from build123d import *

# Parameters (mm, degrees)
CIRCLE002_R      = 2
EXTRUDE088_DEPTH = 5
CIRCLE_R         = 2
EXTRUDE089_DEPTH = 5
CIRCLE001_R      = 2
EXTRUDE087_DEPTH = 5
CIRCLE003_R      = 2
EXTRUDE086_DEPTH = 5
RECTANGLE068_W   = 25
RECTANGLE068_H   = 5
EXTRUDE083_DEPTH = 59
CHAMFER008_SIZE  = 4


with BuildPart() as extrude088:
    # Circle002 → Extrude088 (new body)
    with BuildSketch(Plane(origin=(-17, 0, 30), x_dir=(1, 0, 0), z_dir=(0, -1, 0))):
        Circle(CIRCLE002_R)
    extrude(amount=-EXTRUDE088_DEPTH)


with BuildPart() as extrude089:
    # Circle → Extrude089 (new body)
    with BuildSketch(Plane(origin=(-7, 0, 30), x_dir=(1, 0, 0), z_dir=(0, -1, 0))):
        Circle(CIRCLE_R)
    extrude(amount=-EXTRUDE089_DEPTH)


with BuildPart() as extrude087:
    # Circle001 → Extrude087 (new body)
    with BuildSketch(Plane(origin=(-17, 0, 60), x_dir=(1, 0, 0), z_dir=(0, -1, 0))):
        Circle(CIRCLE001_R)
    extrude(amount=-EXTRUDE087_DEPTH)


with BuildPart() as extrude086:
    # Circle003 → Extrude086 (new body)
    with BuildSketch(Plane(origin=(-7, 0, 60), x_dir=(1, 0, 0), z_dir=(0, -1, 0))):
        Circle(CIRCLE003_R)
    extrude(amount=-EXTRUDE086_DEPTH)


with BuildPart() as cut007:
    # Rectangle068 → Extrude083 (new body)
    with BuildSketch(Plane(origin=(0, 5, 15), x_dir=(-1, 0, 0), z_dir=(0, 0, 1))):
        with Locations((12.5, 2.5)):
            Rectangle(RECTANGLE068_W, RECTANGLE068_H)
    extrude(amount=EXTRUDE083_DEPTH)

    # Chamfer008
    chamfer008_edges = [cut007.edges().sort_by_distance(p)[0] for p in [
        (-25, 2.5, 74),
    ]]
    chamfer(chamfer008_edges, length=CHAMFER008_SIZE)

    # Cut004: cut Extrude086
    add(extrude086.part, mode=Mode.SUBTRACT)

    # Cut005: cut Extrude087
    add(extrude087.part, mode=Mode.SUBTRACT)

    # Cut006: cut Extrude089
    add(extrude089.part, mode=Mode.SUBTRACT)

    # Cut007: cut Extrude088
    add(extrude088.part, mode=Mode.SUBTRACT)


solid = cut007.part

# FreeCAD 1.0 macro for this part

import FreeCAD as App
import Part
import Sketcher

V = App.Vector
Q = App.Units.Quantity


def edges_at(feature, points):
    """Names of the edges that pass closest to the given points."""
    edges = feature.Shape.Edges
    near = lambda p: min(range(len(edges)), key=lambda i: edges[i].distToShape(Part.Vertex(*p))[0])
    return sorted({f"Edge{near(p) + 1}" for p in points})


def add_polygon(sketch, points):
    """Adds a closed chain of lines whose ends are joined by coincident constraints."""
    first, n = sketch.GeometryCount, len(points)
    for a, b in zip(points, points[1:] + points[:1]):
        sketch.addGeometry(Part.LineSegment(App.Vector(*a, 0), App.Vector(*b, 0)), False)
    for i in range(n):
        sketch.addConstraint(Sketcher.Constraint("Coincident", first + i, 2, first + (i + 1) % n, 1))

doc = App.newDocument("Part")
body = doc.addObject("PartDesign::Body", "Body")

sketch1 = doc.addObject("Sketcher::SketchObject", "Sketch")
body.addObject(sketch1)
sketch1.AttachmentSupport = (doc.XZ_Plane, [""])
sketch1.MapMode = "FlatFace"
sketch1.addGeometry(Part.Circle(V(-17, 30, 0), V(0, 0, 1), 2), False)
sketch1.addConstraint(Sketcher.Constraint("Diameter", 0, Q("4 mm")))
sketch1.addConstraint(Sketcher.Constraint("DistanceX", 0, 3, -1, 1, Q("17 mm")))
sketch1.addConstraint(Sketcher.Constraint("DistanceY", -1, 1, 0, 3, Q("30 mm")))
pad1 = doc.addObject("PartDesign::Pad", "Pad")
body.addObject(pad1)
pad1.Profile = sketch1
pad1.Length = 5
pad1.Reversed = True
body2 = doc.addObject("PartDesign::Body", "Body001")

sketch2 = doc.addObject("Sketcher::SketchObject", "Sketch001")
body2.addObject(sketch2)
sketch2.AttachmentSupport = (doc.getObject("XZ_Plane001"), [""])
sketch2.MapMode = "FlatFace"
sketch2.addGeometry(Part.Circle(V(-7, 30, 0), V(0, 0, 1), 2), False)
sketch2.addConstraint(Sketcher.Constraint("Diameter", 0, Q("4 mm")))
sketch2.addConstraint(Sketcher.Constraint("DistanceX", 0, 3, -1, 1, Q("7 mm")))
sketch2.addConstraint(Sketcher.Constraint("DistanceY", -1, 1, 0, 3, Q("30 mm")))
pad2 = doc.addObject("PartDesign::Pad", "Pad001")
body2.addObject(pad2)
pad2.Profile = sketch2
pad2.Length = 5
pad2.Reversed = True
body3 = doc.addObject("PartDesign::Body", "Body002")

sketch3 = doc.addObject("Sketcher::SketchObject", "Sketch002")
body3.addObject(sketch3)
sketch3.AttachmentSupport = (doc.getObject("XZ_Plane002"), [""])
sketch3.MapMode = "FlatFace"
sketch3.addGeometry(Part.Circle(V(-17, 60, 0), V(0, 0, 1), 2), False)
sketch3.addConstraint(Sketcher.Constraint("Diameter", 0, Q("4 mm")))
sketch3.addConstraint(Sketcher.Constraint("DistanceX", 0, 3, -1, 1, Q("17 mm")))
sketch3.addConstraint(Sketcher.Constraint("DistanceY", -1, 1, 0, 3, Q("60 mm")))
pad3 = doc.addObject("PartDesign::Pad", "Pad002")
body3.addObject(pad3)
pad3.Profile = sketch3
pad3.Length = 5
pad3.Reversed = True
body4 = doc.addObject("PartDesign::Body", "Body003")

sketch4 = doc.addObject("Sketcher::SketchObject", "Sketch003")
body4.addObject(sketch4)
sketch4.AttachmentSupport = (doc.getObject("XZ_Plane003"), [""])
sketch4.MapMode = "FlatFace"
sketch4.addGeometry(Part.Circle(V(-7, 60, 0), V(0, 0, 1), 2), False)
sketch4.addConstraint(Sketcher.Constraint("Diameter", 0, Q("4 mm")))
sketch4.addConstraint(Sketcher.Constraint("DistanceX", 0, 3, -1, 1, Q("7 mm")))
sketch4.addConstraint(Sketcher.Constraint("DistanceY", -1, 1, 0, 3, Q("60 mm")))
pad4 = doc.addObject("PartDesign::Pad", "Pad003")
body4.addObject(pad4)
pad4.Profile = sketch4
pad4.Length = 5
pad4.Reversed = True
body5 = doc.addObject("PartDesign::Body", "Body004")

sketch5 = doc.addObject("Sketcher::SketchObject", "Sketch004")
body5.addObject(sketch5)
sketch5.AttachmentSupport = (doc.getObject("XY_Plane004"), [""])
sketch5.MapMode = "FlatFace"
sketch5.AttachmentOffset = App.Placement(V(0, 0, 15), App.Rotation())
add_polygon(sketch5, [(0, 0), (0, 5), (-25, 5), (-25, 0)])
sketch5.addConstraint(Sketcher.Constraint("Vertical", 0))
sketch5.addConstraint(Sketcher.Constraint("Horizontal", 1))
sketch5.addConstraint(Sketcher.Constraint("Vertical", 2))
sketch5.addConstraint(Sketcher.Constraint("Horizontal", 3))
sketch5.addConstraint(Sketcher.Constraint("Coincident", 3, 2, -1, 1))
sketch5.addConstraint(Sketcher.Constraint("DistanceX", 1, 2, 1, 1, Q("25 mm")))
sketch5.addConstraint(Sketcher.Constraint("DistanceY", 0, 1, 0, 2, Q("5 mm")))
pad5 = doc.addObject("PartDesign::Pad", "Pad004")
body5.addObject(pad5)
pad5.Profile = sketch5
pad5.Length = 59
doc.recompute()

chamfer = doc.addObject("PartDesign::Chamfer", "Chamfer")
body5.addObject(chamfer)
chamfer.Base = (pad5, edges_at(pad5, [(-25, 2.5, 74)]))
chamfer.Size = 4
doc.recompute()

boolean = doc.addObject("PartDesign::Boolean", "Boolean")
body5.addObject(boolean)
boolean.Type = "Cut"
boolean.addObjects([body4])
doc.recompute()

boolean2 = doc.addObject("PartDesign::Boolean", "Boolean001")
body5.addObject(boolean2)
boolean2.Type = "Cut"
boolean2.addObjects([body3])
doc.recompute()

boolean3 = doc.addObject("PartDesign::Boolean", "Boolean002")
body5.addObject(boolean3)
boolean3.Type = "Cut"
boolean3.addObjects([body2])
doc.recompute()

boolean4 = doc.addObject("PartDesign::Boolean", "Boolean003")
body5.addObject(boolean4)
boolean4.Type = "Cut"
boolean4.addObjects([body])

doc.recompute()
